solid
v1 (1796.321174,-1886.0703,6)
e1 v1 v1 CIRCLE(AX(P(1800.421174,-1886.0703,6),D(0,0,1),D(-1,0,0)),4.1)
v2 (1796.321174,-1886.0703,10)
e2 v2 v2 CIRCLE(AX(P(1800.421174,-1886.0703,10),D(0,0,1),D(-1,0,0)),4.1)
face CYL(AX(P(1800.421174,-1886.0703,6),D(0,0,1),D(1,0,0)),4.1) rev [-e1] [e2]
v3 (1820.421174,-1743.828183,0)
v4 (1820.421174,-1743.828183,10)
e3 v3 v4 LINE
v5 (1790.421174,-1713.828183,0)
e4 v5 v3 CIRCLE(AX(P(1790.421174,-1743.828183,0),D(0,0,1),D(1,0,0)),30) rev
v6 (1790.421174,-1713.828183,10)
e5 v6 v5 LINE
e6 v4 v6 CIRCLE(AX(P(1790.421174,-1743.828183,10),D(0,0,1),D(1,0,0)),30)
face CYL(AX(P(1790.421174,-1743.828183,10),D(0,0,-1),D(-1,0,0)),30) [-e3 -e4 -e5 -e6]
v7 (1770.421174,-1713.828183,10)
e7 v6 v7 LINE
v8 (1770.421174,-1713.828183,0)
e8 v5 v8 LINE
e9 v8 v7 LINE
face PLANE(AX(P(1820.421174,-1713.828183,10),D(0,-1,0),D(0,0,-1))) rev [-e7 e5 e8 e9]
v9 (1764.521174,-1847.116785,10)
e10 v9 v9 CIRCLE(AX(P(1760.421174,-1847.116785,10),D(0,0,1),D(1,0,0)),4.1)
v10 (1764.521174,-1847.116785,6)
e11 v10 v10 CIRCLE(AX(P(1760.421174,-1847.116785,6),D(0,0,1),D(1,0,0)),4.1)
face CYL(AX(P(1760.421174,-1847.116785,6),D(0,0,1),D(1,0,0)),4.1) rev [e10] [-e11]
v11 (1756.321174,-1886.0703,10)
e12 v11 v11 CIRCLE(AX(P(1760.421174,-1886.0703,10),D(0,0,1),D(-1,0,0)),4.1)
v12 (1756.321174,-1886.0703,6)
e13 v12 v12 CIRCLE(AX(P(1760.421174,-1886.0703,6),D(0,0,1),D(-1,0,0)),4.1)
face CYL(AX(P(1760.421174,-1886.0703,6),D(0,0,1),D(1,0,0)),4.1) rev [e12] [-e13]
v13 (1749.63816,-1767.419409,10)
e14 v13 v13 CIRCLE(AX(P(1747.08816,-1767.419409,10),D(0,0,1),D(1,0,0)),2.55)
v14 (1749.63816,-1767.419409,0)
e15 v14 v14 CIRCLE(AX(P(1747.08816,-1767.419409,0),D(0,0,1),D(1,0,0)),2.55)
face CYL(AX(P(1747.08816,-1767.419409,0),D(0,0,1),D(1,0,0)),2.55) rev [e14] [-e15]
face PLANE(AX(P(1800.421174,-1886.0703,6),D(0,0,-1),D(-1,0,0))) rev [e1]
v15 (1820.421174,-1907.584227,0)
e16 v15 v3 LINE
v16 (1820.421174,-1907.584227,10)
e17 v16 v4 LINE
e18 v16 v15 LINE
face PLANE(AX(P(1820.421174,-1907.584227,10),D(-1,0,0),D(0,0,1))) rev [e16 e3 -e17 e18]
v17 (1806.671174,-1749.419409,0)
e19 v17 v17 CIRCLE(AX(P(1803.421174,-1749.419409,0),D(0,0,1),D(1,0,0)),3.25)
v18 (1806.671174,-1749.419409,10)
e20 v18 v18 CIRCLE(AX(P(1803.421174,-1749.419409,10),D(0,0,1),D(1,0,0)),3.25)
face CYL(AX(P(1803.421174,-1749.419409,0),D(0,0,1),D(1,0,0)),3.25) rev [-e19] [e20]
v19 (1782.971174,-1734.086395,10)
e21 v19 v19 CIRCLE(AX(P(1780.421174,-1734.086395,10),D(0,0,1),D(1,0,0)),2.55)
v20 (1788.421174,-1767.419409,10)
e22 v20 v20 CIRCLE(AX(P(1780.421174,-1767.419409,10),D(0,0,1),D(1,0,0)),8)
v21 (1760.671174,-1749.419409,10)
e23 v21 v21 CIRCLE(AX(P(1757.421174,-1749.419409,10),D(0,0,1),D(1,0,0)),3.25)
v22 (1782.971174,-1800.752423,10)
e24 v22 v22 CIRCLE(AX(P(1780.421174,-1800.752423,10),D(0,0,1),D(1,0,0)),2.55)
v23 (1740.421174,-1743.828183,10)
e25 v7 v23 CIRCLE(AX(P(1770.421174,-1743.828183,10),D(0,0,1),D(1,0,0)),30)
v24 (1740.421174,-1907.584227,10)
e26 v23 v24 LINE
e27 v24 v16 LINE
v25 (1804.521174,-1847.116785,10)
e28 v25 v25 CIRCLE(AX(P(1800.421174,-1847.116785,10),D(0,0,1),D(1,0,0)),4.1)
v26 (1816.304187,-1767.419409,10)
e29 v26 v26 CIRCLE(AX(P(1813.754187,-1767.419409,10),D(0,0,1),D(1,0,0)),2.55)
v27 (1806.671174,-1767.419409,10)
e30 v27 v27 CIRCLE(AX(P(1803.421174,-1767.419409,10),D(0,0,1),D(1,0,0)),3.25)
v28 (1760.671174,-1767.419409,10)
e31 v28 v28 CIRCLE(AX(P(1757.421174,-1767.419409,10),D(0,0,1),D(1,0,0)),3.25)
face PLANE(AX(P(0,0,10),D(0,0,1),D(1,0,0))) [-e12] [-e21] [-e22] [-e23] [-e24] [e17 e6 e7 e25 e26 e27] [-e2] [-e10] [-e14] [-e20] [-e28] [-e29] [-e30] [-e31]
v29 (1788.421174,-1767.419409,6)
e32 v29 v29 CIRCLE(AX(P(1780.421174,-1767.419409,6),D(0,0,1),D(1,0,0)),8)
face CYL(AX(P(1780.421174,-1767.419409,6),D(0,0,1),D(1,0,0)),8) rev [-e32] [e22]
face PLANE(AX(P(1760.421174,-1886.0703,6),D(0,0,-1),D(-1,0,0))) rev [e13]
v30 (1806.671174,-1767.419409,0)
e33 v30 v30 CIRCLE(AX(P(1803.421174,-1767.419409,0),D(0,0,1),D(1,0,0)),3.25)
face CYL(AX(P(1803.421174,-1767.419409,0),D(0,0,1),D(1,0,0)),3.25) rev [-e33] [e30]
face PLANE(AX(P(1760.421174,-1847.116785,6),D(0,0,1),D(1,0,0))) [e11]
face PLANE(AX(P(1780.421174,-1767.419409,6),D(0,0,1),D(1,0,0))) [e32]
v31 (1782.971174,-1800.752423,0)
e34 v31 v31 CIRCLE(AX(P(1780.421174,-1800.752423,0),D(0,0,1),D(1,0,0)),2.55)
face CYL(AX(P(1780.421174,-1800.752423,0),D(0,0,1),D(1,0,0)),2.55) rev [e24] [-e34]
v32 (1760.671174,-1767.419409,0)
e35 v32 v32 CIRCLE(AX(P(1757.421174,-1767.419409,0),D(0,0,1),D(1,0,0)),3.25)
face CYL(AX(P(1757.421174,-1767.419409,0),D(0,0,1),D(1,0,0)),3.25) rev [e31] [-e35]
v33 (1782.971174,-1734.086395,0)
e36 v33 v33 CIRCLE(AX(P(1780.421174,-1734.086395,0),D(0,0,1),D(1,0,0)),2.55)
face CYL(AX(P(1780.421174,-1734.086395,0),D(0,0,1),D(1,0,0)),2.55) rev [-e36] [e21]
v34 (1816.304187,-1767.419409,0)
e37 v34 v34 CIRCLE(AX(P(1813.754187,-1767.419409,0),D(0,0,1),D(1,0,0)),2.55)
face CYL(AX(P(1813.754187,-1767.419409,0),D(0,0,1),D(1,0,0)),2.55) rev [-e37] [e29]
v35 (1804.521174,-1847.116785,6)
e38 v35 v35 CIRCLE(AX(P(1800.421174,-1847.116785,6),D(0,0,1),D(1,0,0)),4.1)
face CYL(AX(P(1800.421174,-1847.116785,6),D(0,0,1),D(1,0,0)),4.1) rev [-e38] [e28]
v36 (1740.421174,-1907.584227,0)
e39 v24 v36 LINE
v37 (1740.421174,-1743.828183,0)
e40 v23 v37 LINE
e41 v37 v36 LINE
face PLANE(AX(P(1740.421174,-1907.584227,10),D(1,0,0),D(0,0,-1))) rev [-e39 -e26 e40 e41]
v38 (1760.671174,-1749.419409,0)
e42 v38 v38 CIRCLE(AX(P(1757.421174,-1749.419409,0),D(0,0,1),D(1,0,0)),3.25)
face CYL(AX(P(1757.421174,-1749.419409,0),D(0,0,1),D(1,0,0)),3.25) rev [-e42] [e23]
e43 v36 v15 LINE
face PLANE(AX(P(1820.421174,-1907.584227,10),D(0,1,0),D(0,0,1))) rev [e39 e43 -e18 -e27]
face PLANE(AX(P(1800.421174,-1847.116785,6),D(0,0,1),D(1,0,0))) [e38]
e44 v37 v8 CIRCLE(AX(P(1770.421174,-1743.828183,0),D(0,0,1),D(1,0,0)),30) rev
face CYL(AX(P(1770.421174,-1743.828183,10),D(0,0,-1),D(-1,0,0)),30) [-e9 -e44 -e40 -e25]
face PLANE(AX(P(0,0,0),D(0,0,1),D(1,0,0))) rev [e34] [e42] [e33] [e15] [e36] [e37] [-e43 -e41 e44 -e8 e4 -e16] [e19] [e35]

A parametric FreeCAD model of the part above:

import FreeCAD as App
import Part
import Sketcher

V = App.Vector


def edges_at(feature, points):
    """Names of the edges that pass closest to the given points."""
    edges = feature.Shape.Edges
    near = lambda p: min(range(len(edges)), key=lambda i: edges[i].distToShape(Part.Vertex(*p))[0])
    return sorted({f"Edge{near(p) + 1}" for p in points})

doc = App.newDocument("Part")
body = doc.addObject("PartDesign::Body", "Body")

sketch1 = doc.addObject("Sketcher::SketchObject", "Sketch")
body.addObject(sketch1)
sketch1.AttachmentSupport = (doc.XY_Plane, [""])
sketch1.MapMode = "FlatFace"
sketch1.addGeometry([
    Part.LineSegment(V(1740, -1714, 0), V(1740, -1908, 0)),
    Part.LineSegment(V(1740, -1908, 0), V(1820, -1908, 0)),
    Part.LineSegment(V(1820, -1908, 0), V(1820, -1714, 0)),
    Part.LineSegment(V(1820, -1714, 0), V(1740, -1714, 0)),
], False)
sketch1.addConstraint([
    Sketcher.Constraint("Coincident", 0, 2, 1, 1),
    Sketcher.Constraint("Coincident", 1, 2, 2, 1),
    Sketcher.Constraint("Coincident", 2, 2, 3, 1),
    Sketcher.Constraint("Coincident", 3, 2, 0, 1),
    Sketcher.Constraint("Vertical", 0),
    Sketcher.Constraint("Horizontal", 1),
    Sketcher.Constraint("Vertical", 2),
    Sketcher.Constraint("Horizontal", 3),
    Sketcher.Constraint("DistanceX", 1, 1, 1, 2, 80.0),
    Sketcher.Constraint("DistanceY", 0, 2, 0, 1, 193.756045),
    Sketcher.Constraint("DistanceX", -1, 1, 0, 2, 1740.421174),
    Sketcher.Constraint("DistanceY", 0, 2, -1, 1, 1907.584227),
])
pad1 = doc.addObject("PartDesign::Pad", "Pad")
body.addObject(pad1)
pad1.Profile = sketch1
pad1.Length = 10

sketch2 = doc.addObject("Sketcher::SketchObject", "Sketch001")
body.addObject(sketch2)
sketch2.AttachmentSupport = (doc.XY_Plane, [""])
sketch2.MapMode = "FlatFace"
sketch2.AttachmentOffset = App.Placement(V(0, 0, 10), App.Rotation())
sketch2.addGeometry([
    Part.Circle(V(1747.1, -1767.4, 0), V(0, 0, 1), 2.5),
    Part.Circle(V(1780.4, -1734.1, 0), V(0, 0, 1), 2.5),
    Part.Circle(V(1813.8, -1767.4, 0), V(0, 0, 1), 2.5),
    Part.Circle(V(1780.4, -1800.8, 0), V(0, 0, 1), 2.5),
], False)
sketch2.addConstraint([
    Sketcher.Constraint("Equal", 0, 1),
    Sketcher.Constraint("Equal", 1, 2),
    Sketcher.Constraint("Equal", 2, 3),
    Sketcher.Constraint("Horizontal", 0, 3, 2, 3),
    Sketcher.Constraint("Vertical", 1, 3, 3, 3),
    Sketcher.Constraint("Diameter", 0, 5.1),
    Sketcher.Constraint("DistanceX", -1, 1, 0, 3, 1747.08816),
    Sketcher.Constraint("DistanceY", 0, 3, -1, 1, 1767.419409),
    Sketcher.Constraint("DistanceX", -1, 1, 1, 3, 1780.421174),
    Sketcher.Constraint("DistanceY", 1, 3, -1, 1, 1734.086395),
    Sketcher.Constraint("DistanceX", -1, 1, 2, 3, 1813.754187),
    Sketcher.Constraint("DistanceY", 3, 3, -1, 1, 1800.752423),
])
pocket1 = doc.addObject("PartDesign::Pocket", "Pocket")
body.addObject(pocket1)
pocket1.Profile = sketch2
pocket1.Type = "ThroughAll"

sketch3 = doc.addObject("Sketcher::SketchObject", "Sketch002")
body.addObject(sketch3)
sketch3.AttachmentSupport = (doc.XY_Plane, [""])
sketch3.MapMode = "FlatFace"
sketch3.AttachmentOffset = App.Placement(V(0, 0, 10), App.Rotation())
sketch3.addGeometry([
    Part.Circle(V(1803.4, -1749.4, 0), V(0, 0, 1), 3.2),
    Part.Circle(V(1803.4, -1767.4, 0), V(0, 0, 1), 3.2),
    Part.Circle(V(1757.4, -1749.4, 0), V(0, 0, 1), 3.2),
    Part.Circle(V(1757.4, -1767.4, 0), V(0, 0, 1), 3.2),
], False)
sketch3.addConstraint([
    Sketcher.Constraint("Equal", 0, 1),
    Sketcher.Constraint("Equal", 1, 2),
    Sketcher.Constraint("Equal", 2, 3),
    Sketcher.Constraint("Horizontal", 0, 3, 2, 3),
    Sketcher.Constraint("Horizontal", 1, 3, 3, 3),
    Sketcher.Constraint("Vertical", 0, 3, 1, 3),
    Sketcher.Constraint("Vertical", 2, 3, 3, 3),
    Sketcher.Constraint("Diameter", 0, 6.5),
    Sketcher.Constraint("DistanceY", 1, 3, 0, 3, 18.0),
    Sketcher.Constraint("DistanceX", 2, 3, 0, 3, 46.0),
    Sketcher.Constraint("DistanceY", 0, 3, -1, 1, 1749.419409),
    Sketcher.Constraint("DistanceX", -1, 1, 0, 3, 1803.421174),
])
pocket2 = doc.addObject("PartDesign::Pocket", "Pocket001")
body.addObject(pocket2)
pocket2.Profile = sketch3
pocket2.Type = "ThroughAll"

sketch4 = doc.addObject("Sketcher::SketchObject", "Sketch003")
body.addObject(sketch4)
sketch4.AttachmentSupport = (doc.XY_Plane, [""])
sketch4.MapMode = "FlatFace"
sketch4.AttachmentOffset = App.Placement(V(0, 0, 10), App.Rotation())
sketch4.addGeometry([
    Part.Circle(V(1760.4, -1847.1, 0), V(0, 0, 1), 4.1),
    Part.Circle(V(1800.4, -1847.1, 0), V(0, 0, 1), 4.1),
    Part.Circle(V(1800.4, -1886.1, 0), V(0, 0, 1), 4.1),
    Part.Circle(V(1760.4, -1886.1, 0), V(0, 0, 1), 4.1),
], False)
sketch4.addConstraint([
    Sketcher.Constraint("Equal", 0, 1),
    Sketcher.Constraint("Equal", 1, 2),
    Sketcher.Constraint("Equal", 2, 3),
    Sketcher.Constraint("Horizontal", 0, 3, 1, 3),
    Sketcher.Constraint("Horizontal", 2, 3, 3, 3),
    Sketcher.Constraint("Vertical", 1, 3, 2, 3),
    Sketcher.Constraint("Vertical", 0, 3, 3, 3),
    Sketcher.Constraint("Diameter", 0, 8.2),
    Sketcher.Constraint("DistanceX", 0, 3, 1, 3, 40.0),
    Sketcher.Constraint("DistanceY", 2, 3, -1, 1, 1886.0703),
    Sketcher.Constraint("DistanceX", -1, 1, 0, 3, 1760.421174),
    Sketcher.Constraint("DistanceY", 0, 3, -1, 1, 1847.116785),
])
pocket3 = doc.addObject("PartDesign::Pocket", "Pocket002")
body.addObject(pocket3)
pocket3.Profile = sketch4
pocket3.Length = 4
doc.recompute()

fillet = doc.addObject("PartDesign::Fillet", "Fillet")
body.addObject(fillet)
fillet.Base = (pocket3, edges_at(pocket3, [(1740.421, -1713.828, 5), (1820.421, -1713.828, 5)]))
fillet.Radius = 30

sketch5 = doc.addObject("Sketcher::SketchObject", "Sketch004")
body.addObject(sketch5)
sketch5.AttachmentSupport = (doc.XY_Plane, [""])
sketch5.MapMode = "FlatFace"
sketch5.AttachmentOffset = App.Placement(V(0, 0, 10), App.Rotation())
sketch5.addGeometry(Part.Circle(V(1780, -1767, 0), V(0, 0, 1), 8), False)
sketch5.addConstraint([
    Sketcher.Constraint("Diameter", 0, 16.0),
    Sketcher.Constraint("DistanceY", 0, 3, -1, 1, 1767.419409),
    Sketcher.Constraint("DistanceX", -1, 1, 0, 3, 1780.421174),
])
pocket4 = doc.addObject("PartDesign::Pocket", "Pocket003")
body.addObject(pocket4)
pocket4.Profile = sketch5
pocket4.Length = 4

doc.recompute()
